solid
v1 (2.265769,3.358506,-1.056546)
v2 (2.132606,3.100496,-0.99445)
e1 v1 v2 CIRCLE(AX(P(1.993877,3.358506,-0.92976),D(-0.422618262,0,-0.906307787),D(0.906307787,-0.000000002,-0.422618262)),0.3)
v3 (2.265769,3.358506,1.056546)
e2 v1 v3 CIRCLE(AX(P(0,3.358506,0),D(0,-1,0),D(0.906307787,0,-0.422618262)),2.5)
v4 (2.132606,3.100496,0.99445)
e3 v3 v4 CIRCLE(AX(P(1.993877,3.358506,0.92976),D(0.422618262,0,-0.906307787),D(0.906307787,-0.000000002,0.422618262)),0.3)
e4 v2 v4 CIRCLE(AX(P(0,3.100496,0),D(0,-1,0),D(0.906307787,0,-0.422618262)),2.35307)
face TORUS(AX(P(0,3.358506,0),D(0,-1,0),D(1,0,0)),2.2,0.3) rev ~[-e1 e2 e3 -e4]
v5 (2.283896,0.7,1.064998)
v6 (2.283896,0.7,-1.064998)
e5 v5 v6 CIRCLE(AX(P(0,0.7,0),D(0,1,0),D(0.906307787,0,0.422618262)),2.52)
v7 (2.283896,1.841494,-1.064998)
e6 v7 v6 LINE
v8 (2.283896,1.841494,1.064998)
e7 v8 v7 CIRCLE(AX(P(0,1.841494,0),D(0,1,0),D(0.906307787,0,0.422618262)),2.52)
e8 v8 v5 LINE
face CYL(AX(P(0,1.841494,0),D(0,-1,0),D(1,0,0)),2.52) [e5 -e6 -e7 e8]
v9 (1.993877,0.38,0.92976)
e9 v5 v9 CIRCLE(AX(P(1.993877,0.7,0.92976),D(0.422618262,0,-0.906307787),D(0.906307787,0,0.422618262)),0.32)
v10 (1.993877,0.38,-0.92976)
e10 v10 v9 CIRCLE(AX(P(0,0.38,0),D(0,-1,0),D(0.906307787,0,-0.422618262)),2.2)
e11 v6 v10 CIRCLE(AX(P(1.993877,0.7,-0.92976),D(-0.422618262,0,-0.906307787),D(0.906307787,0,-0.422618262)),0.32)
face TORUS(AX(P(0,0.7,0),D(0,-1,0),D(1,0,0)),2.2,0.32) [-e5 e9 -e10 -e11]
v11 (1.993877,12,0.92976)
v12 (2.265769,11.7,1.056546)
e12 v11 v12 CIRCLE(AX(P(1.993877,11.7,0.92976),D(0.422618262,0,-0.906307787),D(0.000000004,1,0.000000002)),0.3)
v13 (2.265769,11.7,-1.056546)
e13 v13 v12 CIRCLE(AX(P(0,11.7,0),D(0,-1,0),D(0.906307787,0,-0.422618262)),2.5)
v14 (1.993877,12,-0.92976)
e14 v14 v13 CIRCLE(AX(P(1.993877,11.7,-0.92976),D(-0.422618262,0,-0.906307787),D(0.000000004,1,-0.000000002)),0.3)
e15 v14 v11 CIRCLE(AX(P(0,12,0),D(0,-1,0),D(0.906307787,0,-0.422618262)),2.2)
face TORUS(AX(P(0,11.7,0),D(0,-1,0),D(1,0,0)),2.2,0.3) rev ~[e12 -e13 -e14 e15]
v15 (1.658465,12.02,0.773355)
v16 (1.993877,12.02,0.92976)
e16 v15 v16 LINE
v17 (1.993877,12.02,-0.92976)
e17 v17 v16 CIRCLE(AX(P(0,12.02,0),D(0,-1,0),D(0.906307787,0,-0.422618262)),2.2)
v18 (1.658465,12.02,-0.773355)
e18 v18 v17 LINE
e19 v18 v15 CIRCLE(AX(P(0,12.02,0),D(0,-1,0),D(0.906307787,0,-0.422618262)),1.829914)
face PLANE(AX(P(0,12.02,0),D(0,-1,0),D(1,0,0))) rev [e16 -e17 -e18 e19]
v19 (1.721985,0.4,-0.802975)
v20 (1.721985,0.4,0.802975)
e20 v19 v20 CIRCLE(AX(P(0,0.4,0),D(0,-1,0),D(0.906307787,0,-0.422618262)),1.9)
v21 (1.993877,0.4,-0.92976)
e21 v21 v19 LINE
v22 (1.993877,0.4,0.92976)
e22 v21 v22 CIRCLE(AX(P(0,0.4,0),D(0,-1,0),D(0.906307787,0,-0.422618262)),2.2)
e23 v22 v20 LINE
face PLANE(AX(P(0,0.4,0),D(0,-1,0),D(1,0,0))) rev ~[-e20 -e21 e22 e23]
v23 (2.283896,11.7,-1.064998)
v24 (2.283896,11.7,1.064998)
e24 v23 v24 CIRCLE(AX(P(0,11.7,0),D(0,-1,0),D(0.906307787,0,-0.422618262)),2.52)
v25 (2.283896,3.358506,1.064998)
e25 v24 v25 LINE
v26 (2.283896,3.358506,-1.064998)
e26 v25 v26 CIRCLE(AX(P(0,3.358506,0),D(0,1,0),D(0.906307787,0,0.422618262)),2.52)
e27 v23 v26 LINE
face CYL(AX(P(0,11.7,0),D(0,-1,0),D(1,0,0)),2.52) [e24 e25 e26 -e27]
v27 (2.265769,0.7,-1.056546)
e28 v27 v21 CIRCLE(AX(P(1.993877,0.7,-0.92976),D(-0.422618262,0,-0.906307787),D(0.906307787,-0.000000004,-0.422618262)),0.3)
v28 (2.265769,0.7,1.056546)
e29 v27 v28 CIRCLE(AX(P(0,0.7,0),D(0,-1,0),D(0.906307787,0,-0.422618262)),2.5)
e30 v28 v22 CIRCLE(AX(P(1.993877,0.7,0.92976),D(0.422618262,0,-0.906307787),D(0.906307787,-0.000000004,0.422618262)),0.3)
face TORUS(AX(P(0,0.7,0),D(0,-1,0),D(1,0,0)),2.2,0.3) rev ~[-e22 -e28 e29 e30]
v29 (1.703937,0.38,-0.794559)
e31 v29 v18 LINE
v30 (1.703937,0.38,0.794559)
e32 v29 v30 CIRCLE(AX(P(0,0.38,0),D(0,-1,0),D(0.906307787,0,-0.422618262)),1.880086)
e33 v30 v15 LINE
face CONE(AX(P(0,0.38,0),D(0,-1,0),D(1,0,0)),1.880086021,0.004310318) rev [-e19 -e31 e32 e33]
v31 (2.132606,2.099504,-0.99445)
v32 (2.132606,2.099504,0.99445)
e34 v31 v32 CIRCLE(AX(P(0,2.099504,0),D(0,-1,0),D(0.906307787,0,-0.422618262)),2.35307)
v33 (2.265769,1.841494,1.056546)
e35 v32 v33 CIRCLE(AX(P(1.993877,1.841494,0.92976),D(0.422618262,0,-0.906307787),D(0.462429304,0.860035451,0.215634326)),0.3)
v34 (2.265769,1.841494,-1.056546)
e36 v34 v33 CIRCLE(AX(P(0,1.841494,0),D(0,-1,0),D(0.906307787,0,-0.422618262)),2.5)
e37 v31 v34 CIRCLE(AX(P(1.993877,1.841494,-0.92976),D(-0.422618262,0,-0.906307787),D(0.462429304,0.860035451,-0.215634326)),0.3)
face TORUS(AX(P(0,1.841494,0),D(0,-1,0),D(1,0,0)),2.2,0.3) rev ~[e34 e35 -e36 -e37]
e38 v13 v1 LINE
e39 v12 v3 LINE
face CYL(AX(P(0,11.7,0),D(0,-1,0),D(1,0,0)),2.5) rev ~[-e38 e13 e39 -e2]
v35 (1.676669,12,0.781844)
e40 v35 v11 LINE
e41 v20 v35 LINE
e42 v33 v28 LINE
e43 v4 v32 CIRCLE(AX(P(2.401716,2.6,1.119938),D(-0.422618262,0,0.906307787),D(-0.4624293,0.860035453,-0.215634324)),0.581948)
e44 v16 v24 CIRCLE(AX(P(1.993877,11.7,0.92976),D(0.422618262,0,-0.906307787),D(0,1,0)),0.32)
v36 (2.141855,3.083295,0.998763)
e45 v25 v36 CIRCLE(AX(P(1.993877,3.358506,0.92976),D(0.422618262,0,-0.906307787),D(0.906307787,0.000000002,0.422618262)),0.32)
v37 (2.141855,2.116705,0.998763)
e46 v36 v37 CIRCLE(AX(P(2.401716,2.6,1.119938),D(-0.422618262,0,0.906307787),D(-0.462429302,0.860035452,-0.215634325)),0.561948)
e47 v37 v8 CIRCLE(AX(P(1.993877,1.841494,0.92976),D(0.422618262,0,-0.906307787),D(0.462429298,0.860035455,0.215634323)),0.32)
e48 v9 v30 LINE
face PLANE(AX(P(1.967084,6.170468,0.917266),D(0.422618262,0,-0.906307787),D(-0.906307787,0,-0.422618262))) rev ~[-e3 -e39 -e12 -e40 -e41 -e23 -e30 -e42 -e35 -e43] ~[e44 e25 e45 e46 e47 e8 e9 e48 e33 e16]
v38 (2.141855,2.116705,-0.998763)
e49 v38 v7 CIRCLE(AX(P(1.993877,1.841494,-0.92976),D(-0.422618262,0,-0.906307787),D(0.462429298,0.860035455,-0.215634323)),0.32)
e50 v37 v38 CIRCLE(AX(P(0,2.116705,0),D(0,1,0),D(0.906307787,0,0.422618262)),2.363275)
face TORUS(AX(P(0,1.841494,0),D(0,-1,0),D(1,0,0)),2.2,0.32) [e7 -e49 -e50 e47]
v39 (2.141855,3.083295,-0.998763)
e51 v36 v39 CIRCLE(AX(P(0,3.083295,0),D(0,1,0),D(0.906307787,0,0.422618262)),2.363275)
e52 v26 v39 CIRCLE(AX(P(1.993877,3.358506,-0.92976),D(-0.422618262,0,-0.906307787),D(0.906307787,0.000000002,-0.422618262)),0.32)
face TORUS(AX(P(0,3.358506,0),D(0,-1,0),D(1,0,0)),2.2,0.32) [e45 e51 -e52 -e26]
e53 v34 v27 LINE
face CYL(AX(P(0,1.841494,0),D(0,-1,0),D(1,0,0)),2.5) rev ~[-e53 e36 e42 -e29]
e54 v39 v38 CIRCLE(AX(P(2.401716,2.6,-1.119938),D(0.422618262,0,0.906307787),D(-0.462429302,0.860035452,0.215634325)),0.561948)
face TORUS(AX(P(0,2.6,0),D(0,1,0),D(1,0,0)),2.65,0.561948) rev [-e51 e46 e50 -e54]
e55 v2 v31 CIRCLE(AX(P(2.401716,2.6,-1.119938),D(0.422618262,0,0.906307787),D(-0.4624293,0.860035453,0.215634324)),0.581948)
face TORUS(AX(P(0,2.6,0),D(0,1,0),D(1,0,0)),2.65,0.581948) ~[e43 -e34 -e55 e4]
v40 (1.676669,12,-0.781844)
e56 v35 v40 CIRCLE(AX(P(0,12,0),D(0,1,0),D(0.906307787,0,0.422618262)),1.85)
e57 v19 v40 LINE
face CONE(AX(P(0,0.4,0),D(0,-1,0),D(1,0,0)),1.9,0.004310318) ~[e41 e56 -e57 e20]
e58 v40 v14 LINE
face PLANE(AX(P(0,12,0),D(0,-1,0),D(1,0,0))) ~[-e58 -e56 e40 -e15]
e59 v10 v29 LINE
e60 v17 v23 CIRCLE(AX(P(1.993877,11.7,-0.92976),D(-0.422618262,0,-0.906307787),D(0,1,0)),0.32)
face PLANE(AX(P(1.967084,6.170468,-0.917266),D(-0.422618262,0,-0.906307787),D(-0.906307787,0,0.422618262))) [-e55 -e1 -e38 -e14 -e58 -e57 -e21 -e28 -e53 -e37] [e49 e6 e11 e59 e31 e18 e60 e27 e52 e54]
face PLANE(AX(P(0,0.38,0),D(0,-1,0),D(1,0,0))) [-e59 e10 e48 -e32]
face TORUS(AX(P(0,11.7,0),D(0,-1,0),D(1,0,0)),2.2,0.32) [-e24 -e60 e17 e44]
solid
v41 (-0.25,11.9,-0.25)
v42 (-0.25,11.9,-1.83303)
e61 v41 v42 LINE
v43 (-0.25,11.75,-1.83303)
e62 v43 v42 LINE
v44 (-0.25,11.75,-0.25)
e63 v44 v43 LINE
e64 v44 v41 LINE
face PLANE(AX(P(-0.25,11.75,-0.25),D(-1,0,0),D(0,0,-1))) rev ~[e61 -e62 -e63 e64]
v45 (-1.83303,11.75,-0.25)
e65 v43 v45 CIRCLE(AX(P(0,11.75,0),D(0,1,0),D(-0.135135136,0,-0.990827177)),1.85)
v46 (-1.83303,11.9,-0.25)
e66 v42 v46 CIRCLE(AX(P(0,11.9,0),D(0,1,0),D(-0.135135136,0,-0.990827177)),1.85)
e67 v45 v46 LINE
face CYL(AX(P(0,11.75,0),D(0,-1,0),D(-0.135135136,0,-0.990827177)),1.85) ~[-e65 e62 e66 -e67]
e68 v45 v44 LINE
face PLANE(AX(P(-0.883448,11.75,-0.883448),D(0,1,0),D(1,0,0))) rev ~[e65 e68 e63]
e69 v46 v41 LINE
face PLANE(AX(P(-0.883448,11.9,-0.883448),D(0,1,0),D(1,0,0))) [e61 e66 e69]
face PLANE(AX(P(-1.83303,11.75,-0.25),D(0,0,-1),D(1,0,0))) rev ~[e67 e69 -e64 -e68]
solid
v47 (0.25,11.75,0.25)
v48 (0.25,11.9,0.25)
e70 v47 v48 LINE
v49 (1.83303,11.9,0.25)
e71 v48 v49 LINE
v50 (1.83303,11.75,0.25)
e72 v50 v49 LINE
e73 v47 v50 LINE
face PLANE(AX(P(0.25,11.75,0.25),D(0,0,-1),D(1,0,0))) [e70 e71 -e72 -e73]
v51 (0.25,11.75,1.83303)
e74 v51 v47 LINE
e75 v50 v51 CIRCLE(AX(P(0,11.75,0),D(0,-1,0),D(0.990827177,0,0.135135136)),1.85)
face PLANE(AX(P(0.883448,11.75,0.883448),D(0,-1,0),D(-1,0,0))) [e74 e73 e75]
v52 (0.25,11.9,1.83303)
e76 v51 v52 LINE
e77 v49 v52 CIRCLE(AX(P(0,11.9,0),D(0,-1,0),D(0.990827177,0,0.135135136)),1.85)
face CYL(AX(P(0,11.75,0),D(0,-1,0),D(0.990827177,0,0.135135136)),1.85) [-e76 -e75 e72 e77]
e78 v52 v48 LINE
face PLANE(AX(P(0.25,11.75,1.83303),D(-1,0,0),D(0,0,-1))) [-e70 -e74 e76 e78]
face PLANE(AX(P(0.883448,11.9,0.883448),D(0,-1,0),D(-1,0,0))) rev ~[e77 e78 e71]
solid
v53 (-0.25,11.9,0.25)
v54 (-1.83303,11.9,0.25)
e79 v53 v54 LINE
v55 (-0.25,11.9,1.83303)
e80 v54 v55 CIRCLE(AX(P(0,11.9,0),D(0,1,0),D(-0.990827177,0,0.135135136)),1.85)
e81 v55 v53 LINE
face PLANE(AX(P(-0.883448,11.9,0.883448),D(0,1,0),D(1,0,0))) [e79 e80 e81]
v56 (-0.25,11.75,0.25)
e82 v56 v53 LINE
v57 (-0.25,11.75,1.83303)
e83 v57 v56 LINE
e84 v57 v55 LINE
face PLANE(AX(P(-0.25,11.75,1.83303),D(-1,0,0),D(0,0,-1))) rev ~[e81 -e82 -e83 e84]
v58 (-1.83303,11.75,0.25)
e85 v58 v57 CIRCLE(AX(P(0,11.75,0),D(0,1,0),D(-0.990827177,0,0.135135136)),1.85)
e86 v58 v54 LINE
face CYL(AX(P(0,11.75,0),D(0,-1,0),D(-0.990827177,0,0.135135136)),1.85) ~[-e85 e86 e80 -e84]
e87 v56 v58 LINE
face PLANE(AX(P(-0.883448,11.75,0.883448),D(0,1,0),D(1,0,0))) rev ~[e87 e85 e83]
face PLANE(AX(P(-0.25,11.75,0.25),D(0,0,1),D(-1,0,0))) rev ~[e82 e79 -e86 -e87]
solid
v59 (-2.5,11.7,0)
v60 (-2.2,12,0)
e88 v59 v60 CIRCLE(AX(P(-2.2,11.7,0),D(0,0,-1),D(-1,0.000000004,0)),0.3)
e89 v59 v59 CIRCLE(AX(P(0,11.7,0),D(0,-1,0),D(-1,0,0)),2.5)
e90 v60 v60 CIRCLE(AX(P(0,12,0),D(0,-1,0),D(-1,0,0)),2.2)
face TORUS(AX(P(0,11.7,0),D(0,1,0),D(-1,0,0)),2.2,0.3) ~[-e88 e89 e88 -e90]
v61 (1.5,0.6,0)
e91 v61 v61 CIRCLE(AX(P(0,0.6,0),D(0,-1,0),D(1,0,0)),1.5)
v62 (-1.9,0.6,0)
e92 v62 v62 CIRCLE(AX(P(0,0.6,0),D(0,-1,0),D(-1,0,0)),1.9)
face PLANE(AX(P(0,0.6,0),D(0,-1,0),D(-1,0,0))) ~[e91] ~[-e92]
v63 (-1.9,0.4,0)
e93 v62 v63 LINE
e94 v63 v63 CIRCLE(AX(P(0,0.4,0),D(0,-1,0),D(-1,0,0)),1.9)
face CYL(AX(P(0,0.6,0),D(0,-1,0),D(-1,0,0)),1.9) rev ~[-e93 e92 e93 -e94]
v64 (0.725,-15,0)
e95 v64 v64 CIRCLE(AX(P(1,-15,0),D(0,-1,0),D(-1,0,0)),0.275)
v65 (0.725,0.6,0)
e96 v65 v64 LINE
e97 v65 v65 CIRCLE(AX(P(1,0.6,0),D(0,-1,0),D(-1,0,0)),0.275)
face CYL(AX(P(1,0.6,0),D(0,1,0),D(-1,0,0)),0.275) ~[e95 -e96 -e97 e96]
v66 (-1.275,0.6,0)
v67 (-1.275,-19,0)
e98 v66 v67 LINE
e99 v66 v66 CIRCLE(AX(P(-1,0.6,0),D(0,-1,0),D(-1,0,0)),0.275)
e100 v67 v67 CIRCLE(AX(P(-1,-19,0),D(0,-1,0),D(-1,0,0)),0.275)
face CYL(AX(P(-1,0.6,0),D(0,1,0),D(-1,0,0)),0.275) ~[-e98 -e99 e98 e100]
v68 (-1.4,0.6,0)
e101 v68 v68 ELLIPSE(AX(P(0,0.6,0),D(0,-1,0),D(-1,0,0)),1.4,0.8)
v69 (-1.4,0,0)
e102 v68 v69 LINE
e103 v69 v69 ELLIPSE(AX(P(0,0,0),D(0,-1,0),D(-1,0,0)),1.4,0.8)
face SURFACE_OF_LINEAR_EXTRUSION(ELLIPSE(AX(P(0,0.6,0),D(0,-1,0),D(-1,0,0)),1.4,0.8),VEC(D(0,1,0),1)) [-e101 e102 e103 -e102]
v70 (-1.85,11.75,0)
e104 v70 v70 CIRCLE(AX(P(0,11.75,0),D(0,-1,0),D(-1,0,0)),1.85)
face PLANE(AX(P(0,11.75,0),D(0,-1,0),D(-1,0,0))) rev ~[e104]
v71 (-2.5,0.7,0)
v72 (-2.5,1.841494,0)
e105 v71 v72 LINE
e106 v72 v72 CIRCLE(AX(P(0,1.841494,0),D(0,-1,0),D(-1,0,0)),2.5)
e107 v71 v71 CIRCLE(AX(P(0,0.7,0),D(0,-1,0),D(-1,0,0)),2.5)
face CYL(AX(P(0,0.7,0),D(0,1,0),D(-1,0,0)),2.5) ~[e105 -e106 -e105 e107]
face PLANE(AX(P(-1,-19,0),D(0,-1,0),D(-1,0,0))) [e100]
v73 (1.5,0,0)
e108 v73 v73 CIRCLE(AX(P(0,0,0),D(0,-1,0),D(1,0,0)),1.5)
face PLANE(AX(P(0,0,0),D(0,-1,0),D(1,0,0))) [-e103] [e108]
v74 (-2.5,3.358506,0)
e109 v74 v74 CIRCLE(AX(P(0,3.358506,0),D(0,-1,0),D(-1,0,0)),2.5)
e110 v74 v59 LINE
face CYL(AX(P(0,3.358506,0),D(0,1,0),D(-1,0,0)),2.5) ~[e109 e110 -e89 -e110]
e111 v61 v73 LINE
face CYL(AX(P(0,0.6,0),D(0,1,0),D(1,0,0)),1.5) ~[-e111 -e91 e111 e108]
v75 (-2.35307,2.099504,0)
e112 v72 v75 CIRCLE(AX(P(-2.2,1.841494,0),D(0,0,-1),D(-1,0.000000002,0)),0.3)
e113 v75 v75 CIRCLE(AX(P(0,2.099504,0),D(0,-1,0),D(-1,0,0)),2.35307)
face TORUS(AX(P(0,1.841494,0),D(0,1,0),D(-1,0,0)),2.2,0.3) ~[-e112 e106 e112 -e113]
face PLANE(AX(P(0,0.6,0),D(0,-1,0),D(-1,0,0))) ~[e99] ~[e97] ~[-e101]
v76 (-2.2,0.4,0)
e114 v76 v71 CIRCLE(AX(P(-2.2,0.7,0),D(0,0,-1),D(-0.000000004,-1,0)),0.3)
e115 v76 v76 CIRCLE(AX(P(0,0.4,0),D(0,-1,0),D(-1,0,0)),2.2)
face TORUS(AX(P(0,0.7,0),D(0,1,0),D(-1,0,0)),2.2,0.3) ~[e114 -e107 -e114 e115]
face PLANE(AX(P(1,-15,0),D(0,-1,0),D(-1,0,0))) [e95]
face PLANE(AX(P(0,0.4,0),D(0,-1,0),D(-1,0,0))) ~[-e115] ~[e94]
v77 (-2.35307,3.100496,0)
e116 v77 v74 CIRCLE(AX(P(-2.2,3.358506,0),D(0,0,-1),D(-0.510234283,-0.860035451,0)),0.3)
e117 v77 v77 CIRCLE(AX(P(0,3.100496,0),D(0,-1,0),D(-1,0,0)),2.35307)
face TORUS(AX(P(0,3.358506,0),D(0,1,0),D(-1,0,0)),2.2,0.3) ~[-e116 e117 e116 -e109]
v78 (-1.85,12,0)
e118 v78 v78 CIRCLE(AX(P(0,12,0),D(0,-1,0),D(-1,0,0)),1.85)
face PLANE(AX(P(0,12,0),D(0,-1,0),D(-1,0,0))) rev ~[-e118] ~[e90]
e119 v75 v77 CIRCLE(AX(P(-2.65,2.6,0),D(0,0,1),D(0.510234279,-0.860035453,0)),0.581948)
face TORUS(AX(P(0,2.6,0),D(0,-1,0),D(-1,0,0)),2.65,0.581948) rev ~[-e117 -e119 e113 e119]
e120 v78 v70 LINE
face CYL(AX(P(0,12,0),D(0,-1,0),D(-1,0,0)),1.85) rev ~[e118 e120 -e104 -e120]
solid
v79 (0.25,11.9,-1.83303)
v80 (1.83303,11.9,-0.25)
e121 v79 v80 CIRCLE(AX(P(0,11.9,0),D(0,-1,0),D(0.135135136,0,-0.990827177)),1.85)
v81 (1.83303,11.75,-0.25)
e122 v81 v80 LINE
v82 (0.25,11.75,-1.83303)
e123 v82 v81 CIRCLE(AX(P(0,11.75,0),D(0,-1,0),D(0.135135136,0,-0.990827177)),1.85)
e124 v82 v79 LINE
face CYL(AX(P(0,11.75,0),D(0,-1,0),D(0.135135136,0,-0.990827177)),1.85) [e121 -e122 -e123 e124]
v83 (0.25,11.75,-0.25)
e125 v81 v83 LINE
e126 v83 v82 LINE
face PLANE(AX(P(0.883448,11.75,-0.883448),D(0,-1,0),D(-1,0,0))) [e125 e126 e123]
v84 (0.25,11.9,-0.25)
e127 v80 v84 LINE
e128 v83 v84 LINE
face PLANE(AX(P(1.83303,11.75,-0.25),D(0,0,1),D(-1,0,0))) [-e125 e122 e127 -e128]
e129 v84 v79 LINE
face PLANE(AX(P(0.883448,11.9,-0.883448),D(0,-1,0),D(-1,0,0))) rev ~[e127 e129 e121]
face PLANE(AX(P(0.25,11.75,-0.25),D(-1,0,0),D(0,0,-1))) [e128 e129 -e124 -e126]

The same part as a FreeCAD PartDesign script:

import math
import FreeCAD as App
import Part
import Sketcher
from FreeCAD import Vector
Q = App.Units.Quantity

doc = App.newDocument("Part")
params = doc.addObject("Spreadsheet::Sheet", "Params")
for row, (alias, value) in enumerate([
    ("sketch1_radius", "0.3 mm"),
    ("sketch1_width", "1.9 mm"),
    ("sketch1_width2", "0.3 mm"),
    ("sketch1_height", "0.2 mm"),
    ("sketch1_width3", "0.35 mm"),
    ("revolution_angle", "360 deg"),
    ("sketch2_radius", "1.85 mm"),
    ("pad1_length", "0.15 mm"),
    ("sketch3_radius", "1.85 mm"),
    ("pad2_length", "0.15 mm"),
    ("sketch4_radius", "1.85 mm"),
    ("pad3_length", "0.15 mm"),
    ("sketch5_radius", "1.85 mm"),
    ("pad4_length", "0.15 mm"),
    ("sketch6_diameter", "3 mm"),
    ("pad5_length", "0.6 mm"),
    ("sketch7_radius", "0.3 mm"),
    ("sketch7_radius2", "0.32 mm"),
    ("sketch7_width", "0.3 mm"),
    ("sketch7_width2", "0.35 mm"),
    ("revolution2_angle", "25 deg"),
    ("sketch8_radius", "0.3 mm"),
    ("sketch8_radius2", "0.32 mm"),
    ("sketch8_width", "0.3 mm"),
    ("sketch8_width2", "0.35 mm"),
    ("revolution3_angle", "25 deg"),
    ("sketch9_diameter", "0.55 mm"),
    ("pad6_length", "19.6 mm"),
    ("sketch10_diameter", "0.55 mm"),
    ("pad7_length", "15.6 mm"),
], start=1):
    params.set(f"A{row}", alias)
    params.set(f"B{row}", "=" + value)
    params.setAlias(f"B{row}", alias)

body = doc.addObject("PartDesign::Body", "Body")

# Sketch on XY plane
sketch1 = body.newObject("Sketcher::SketchObject", "Sketch")
sketch1.AttachmentSupport = (doc.getObject("XY_Plane"), [""])
sketch1.MapMode = "FlatFace"
sketch1.addGeometry([
    Part.LineSegment(Vector(0, 0.6, 0), Vector(1.9, 0.6, 0)),  # 0
    Part.LineSegment(Vector(1.9, 0.6, 0), Vector(1.9, 0.4, 0)),  # 1
    Part.LineSegment(Vector(1.9, 0.4, 0), Vector(2.2, 0.4, 0)),  # 2
    Part.ArcOfCircle(Part.Circle(Vector(2.2, 0.7, 0), Vector(0, 0, 1), 0.3), math.radians(-90), math.radians(0)),  # 3
    Part.LineSegment(Vector(2.5, 0.7, 0), Vector(2.5, 1.841494, 0)),  # 4
    Part.ArcOfCircle(Part.Circle(Vector(2.2, 1.841494, 0), Vector(0, 0, 1), 0.3), math.radians(0), math.radians(59.320564)),  # 5
    Part.ArcOfCircle(Part.Circle(Vector(2.65, 2.6, 0), Vector(0, 0, 1), 0.581948), math.radians(120.679436), math.radians(239.320564)),  # 6
    Part.ArcOfCircle(Part.Circle(Vector(2.2, 3.358506, 0), Vector(0, 0, 1), 0.3), math.radians(-59.320564), math.radians(0)),  # 7
    Part.LineSegment(Vector(2.5, 3.358506, 0), Vector(2.5, 11.7, 0)),  # 8
    Part.ArcOfCircle(Part.Circle(Vector(2.2, 11.7, 0), Vector(0, 0, 1), 0.3), math.radians(0), math.radians(90)),  # 9
    Part.LineSegment(Vector(2.2, 12, 0), Vector(1.85, 12, 0)),  # 10
    Part.LineSegment(Vector(1.85, 12, 0), Vector(1.85, 11.75, 0)),  # 11
    Part.LineSegment(Vector(1.85, 11.75, 0), Vector(0, 11.75, 0)),  # 12
    Part.LineSegment(Vector(0, 11.75, 0), Vector(0, 0.6, 0)),  # 13
], False)
sketch1.addConstraint([
    Sketcher.Constraint("Coincident", 0, 2, 1, 1),
    Sketcher.Constraint("Coincident", 1, 2, 2, 1),
    Sketcher.Constraint("Tangent", 2, 2, 3, 1),
    Sketcher.Constraint("Tangent", 3, 2, 4, 1),
    Sketcher.Constraint("Tangent", 4, 2, 5, 1),
    Sketcher.Constraint("Tangent", 5, 2, 6, 2),
    Sketcher.Constraint("Tangent", 6, 1, 7, 1),
    Sketcher.Constraint("Tangent", 7, 2, 8, 1),
    Sketcher.Constraint("Tangent", 8, 2, 9, 1),
    Sketcher.Constraint("Tangent", 9, 2, 10, 1),
    Sketcher.Constraint("Coincident", 10, 2, 11, 1),
    Sketcher.Constraint("Coincident", 11, 2, 12, 1),
    Sketcher.Constraint("Coincident", 12, 2, 13, 1),
    Sketcher.Constraint("Coincident", 13, 2, 0, 1),
    Sketcher.Constraint("Horizontal", 0),
    Sketcher.Constraint("Vertical", 1),
    Sketcher.Constraint("Horizontal", 2),
    Sketcher.Constraint("Vertical", 4),
    Sketcher.Constraint("Vertical", 8),
    Sketcher.Constraint("Horizontal", 10),
    Sketcher.Constraint("Vertical", 11),
    Sketcher.Constraint("Horizontal", 12),
    Sketcher.Constraint("Vertical", 13),
    Sketcher.Constraint("Equal", 3, 5),
    Sketcher.Constraint("Equal", 5, 7),
    Sketcher.Constraint("Equal", 7, 9),
    Sketcher.Constraint("PointOnObject", 12, 2, -2),
    Sketcher.Constraint("Vertical", 5, 3, 7, 3),
    Sketcher.Constraint("Radius", 3, Q("0.3 mm")),
    Sketcher.Constraint("DistanceX", 0, 1, 0, 2, Q("1.9 mm")),
    Sketcher.Constraint("DistanceX", 2, 1, 2, 2, Q("0.3 mm")),
    Sketcher.Constraint("DistanceY", 1, 2, 1, 1, Q("0.2 mm")),
    Sketcher.Constraint("DistanceY", -1, 1, 9, 2, Q("12 mm")),
    Sketcher.Constraint("DistanceY", 3, 3, 9, 3, Q("11 mm")),
    Sketcher.Constraint("DistanceY", 0, 2, 6, 3, Q("2 mm")),
    Sketcher.Constraint("DistanceX", 10, 2, 10, 1, Q("0.35 mm")),
    Sketcher.Constraint("DistanceY", 11, 2, 11, 1, Q("0.25 mm")),
    Sketcher.Constraint("DistanceX", -1, 1, 6, 3, Q("2.65 mm")),
    Sketcher.Constraint("Radius", 6, Q("0.581948 mm")),
])
sketch1.setExpression("Constraints[28]", "Params.sketch1_radius")
sketch1.setExpression("Constraints[29]", "Params.sketch1_width")
sketch1.setExpression("Constraints[30]", "Params.sketch1_width2")
sketch1.setExpression("Constraints[31]", "Params.sketch1_height")
sketch1.setExpression("Constraints[35]", "Params.sketch1_width3")
revolution = body.newObject("PartDesign::Revolution", "Revolution")
revolution.Profile = sketch1
revolution.ReferenceAxis = (sketch1, ["V_Axis"])
revolution.setExpression("Angle", "Params.revolution_angle")
body2 = doc.addObject("PartDesign::Body", "Body001")

# Sketch on XZ plane
sketch2 = body2.newObject("Sketcher::SketchObject", "Sketch001")
sketch2.AttachmentSupport = (doc.getObject("XZ_Plane001"), [""])
sketch2.MapMode = "FlatFace"
sketch2.AttachmentOffset = App.Placement(Vector(0, 0, -11.75), App.Rotation())
sketch2.addGeometry([
    Part.LineSegment(Vector(-0.25, -0.25, 0), Vector(-0.25, -1.83303, 0)),
    Part.ArcOfCircle(Part.Circle(Vector(0, 0, 0), Vector(0, 0, 1), 1.85), math.radians(-172.233566), math.radians(-97.766434)),
    Part.LineSegment(Vector(-1.83303, -0.25, 0), Vector(-0.25, -0.25, 0)),
], False)
sketch2.addConstraint([
    Sketcher.Constraint("Coincident", 0, 2, 1, 2),
    Sketcher.Constraint("Coincident", 1, 1, 2, 1),
    Sketcher.Constraint("Coincident", 2, 2, 0, 1),
    Sketcher.Constraint("Vertical", 0),
    Sketcher.Constraint("Horizontal", 2),
    Sketcher.Constraint("Coincident", 1, 3, -1, 1),
    Sketcher.Constraint("Equal", 2, 0),
    Sketcher.Constraint("Radius", 1, Q("1.85 mm")),
    Sketcher.Constraint("DistanceX", 0, 2, -1, 1, Q("0.25 mm")),
])
sketch2.setExpression("Constraints[7]", "Params.sketch2_radius")
pad1 = body2.newObject("PartDesign::Pad", "Pad")
pad1.Profile = sketch2
pad1.setExpression("Length", "Params.pad1_length")
pad1.Reversed = True
body3 = doc.addObject("PartDesign::Body", "Body002")

# Sketch on XZ plane
sketch3 = body3.newObject("Sketcher::SketchObject", "Sketch002")
sketch3.AttachmentSupport = (doc.getObject("XZ_Plane002"), [""])
sketch3.MapMode = "FlatFace"
sketch3.AttachmentOffset = App.Placement(Vector(0, 0, -11.75), App.Rotation())
sketch3.addGeometry([
    Part.LineSegment(Vector(0.25, 0.25, 0), Vector(0.25, 1.83303, 0)),
    Part.ArcOfCircle(Part.Circle(Vector(0, 0, 0), Vector(0, 0, 1), 1.85), math.radians(7.766434), math.radians(82.233566)),
    Part.LineSegment(Vector(1.83303, 0.25, 0), Vector(0.25, 0.25, 0)),
], False)
sketch3.addConstraint([
    Sketcher.Constraint("Coincident", 0, 2, 1, 2),
    Sketcher.Constraint("Coincident", 1, 1, 2, 1),
    Sketcher.Constraint("Coincident", 2, 2, 0, 1),
    Sketcher.Constraint("Vertical", 0),
    Sketcher.Constraint("Horizontal", 2),
    Sketcher.Constraint("Coincident", 1, 3, -1, 1),
    Sketcher.Constraint("Equal", 2, 0),
    Sketcher.Constraint("Radius", 1, Q("1.85 mm")),
    Sketcher.Constraint("DistanceX", -1, 1, 0, 2, Q("0.25 mm")),
])
sketch3.setExpression("Constraints[7]", "Params.sketch3_radius")
pad2 = body3.newObject("PartDesign::Pad", "Pad001")
pad2.Profile = sketch3
pad2.setExpression("Length", "Params.pad2_length")
pad2.Reversed = True
body4 = doc.addObject("PartDesign::Body", "Body003")

# Sketch on XZ plane
sketch4 = body4.newObject("Sketcher::SketchObject", "Sketch003")
sketch4.AttachmentSupport = (doc.getObject("XZ_Plane003"), [""])
sketch4.MapMode = "FlatFace"
sketch4.AttachmentOffset = App.Placement(Vector(0, 0, -11.75), App.Rotation())
sketch4.addGeometry([
    Part.LineSegment(Vector(-0.25, 1.83303, 0), Vector(-0.25, 0.25, 0)),
    Part.LineSegment(Vector(-0.25, 0.25, 0), Vector(-1.83303, 0.25, 0)),
    Part.ArcOfCircle(Part.Circle(Vector(0, 0, 0), Vector(0, 0, 1), 1.85), math.radians(97.766434), math.radians(172.233566)),
], False)
sketch4.addConstraint([
    Sketcher.Constraint("Coincident", 0, 2, 1, 1),
    Sketcher.Constraint("Coincident", 1, 2, 2, 2),
    Sketcher.Constraint("Coincident", 2, 1, 0, 1),
    Sketcher.Constraint("Vertical", 0),
    Sketcher.Constraint("Horizontal", 1),
    Sketcher.Constraint("Coincident", 2, 3, -1, 1),
    Sketcher.Constraint("Equal", 1, 0),
    Sketcher.Constraint("Radius", 2, Q("1.85 mm")),
    Sketcher.Constraint("DistanceX", 0, 2, -1, 1, Q("0.25 mm")),
])
sketch4.setExpression("Constraints[7]", "Params.sketch4_radius")
pad3 = body4.newObject("PartDesign::Pad", "Pad002")
pad3.Profile = sketch4
pad3.setExpression("Length", "Params.pad3_length")
pad3.Reversed = True
body5 = doc.addObject("PartDesign::Body", "Body004")

# Sketch on XZ plane
sketch5 = body5.newObject("Sketcher::SketchObject", "Sketch004")
sketch5.AttachmentSupport = (doc.getObject("XZ_Plane004"), [""])
sketch5.MapMode = "FlatFace"
sketch5.AttachmentOffset = App.Placement(Vector(0, 0, -11.75), App.Rotation())
sketch5.addGeometry([
    Part.LineSegment(Vector(0.25, -1.83303, 0), Vector(0.25, -0.25, 0)),
    Part.LineSegment(Vector(0.25, -0.25, 0), Vector(1.83303, -0.25, 0)),
    Part.ArcOfCircle(Part.Circle(Vector(0, 0, 0), Vector(0, 0, 1), 1.85), math.radians(-82.233566), math.radians(-7.766434)),
], False)
sketch5.addConstraint([
    Sketcher.Constraint("Coincident", 0, 2, 1, 1),
    Sketcher.Constraint("Coincident", 1, 2, 2, 2),
    Sketcher.Constraint("Coincident", 2, 1, 0, 1),
    Sketcher.Constraint("Vertical", 0),
    Sketcher.Constraint("Horizontal", 1),
    Sketcher.Constraint("Coincident", 2, 3, -1, 1),
    Sketcher.Constraint("Equal", 1, 0),
    Sketcher.Constraint("Radius", 2, Q("1.85 mm")),
    Sketcher.Constraint("DistanceX", -1, 1, 0, 2, Q("0.25 mm")),
])
sketch5.setExpression("Constraints[7]", "Params.sketch5_radius")
pad4 = body5.newObject("PartDesign::Pad", "Pad003")
pad4.Profile = sketch5
pad4.setExpression("Length", "Params.pad4_length")
pad4.Reversed = True
body6 = doc.addObject("PartDesign::Body", "Body005")

# Sketch on XZ plane
sketch6 = body6.newObject("Sketcher::SketchObject", "Sketch005")
sketch6.AttachmentSupport = (doc.getObject("XZ_Plane005"), [""])
sketch6.MapMode = "FlatFace"
sketch6.AttachmentOffset = App.Placement(Vector(0, 0, -0.6), App.Rotation())
sketch6.addGeometry([
    Part.Circle(Vector(0, 0, 0), Vector(0, 0, 1), 1.5),
    Part.Ellipse(Vector(-1.4, 0, 0), Vector(0, -0.8, 0), Vector(0, 0, 0)),
], False)
sketch6.addConstraint([
    Sketcher.Constraint("Block", 1),
    Sketcher.Constraint("Coincident", 0, 3, -1, 1),
    Sketcher.Constraint("Diameter", 0, Q("3 mm")),
])
sketch6.setExpression("Constraints[2]", "Params.sketch6_diameter")
pad5 = body6.newObject("PartDesign::Pad", "Pad004")
pad5.Profile = sketch6
pad5.setExpression("Length", "Params.pad5_length")
body7 = doc.addObject("PartDesign::Body", "Body006")

# Sketch on XY plane
sketch7 = body7.newObject("Sketcher::SketchObject", "Sketch006")
sketch7.AttachmentSupport = (doc.getObject("XY_Plane006"), [""])
sketch7.MapMode = "FlatFace"
sketch7.addGeometry([
    Part.LineSegment(Vector(2.52, 3.358506, 0), Vector(2.52, 11.7, 0)),  # 0
    Part.ArcOfCircle(Part.Circle(Vector(2.2, 11.7, 0), Vector(0, 0, 1), 0.32), math.radians(0), math.radians(90)),  # 1
    Part.LineSegment(Vector(2.2, 12.02, 0), Vector(1.829914, 12.02, 0)),  # 2
    Part.LineSegment(Vector(1.829914, 12.02, 0), Vector(1.880086, 0.38, 0)),  # 3
    Part.LineSegment(Vector(1.880086, 0.38, 0), Vector(2.2, 0.38, 0)),  # 4
    Part.ArcOfCircle(Part.Circle(Vector(2.2, 0.7, 0), Vector(0, 0, 1), 0.32), math.radians(-90), math.radians(0)),  # 5
    Part.LineSegment(Vector(2.52, 0.7, 0), Vector(2.52, 1.841494, 0)),  # 6
    Part.ArcOfCircle(Part.Circle(Vector(2.2, 1.841494, 0), Vector(0, 0, 1), 0.32), math.radians(0), math.radians(59.320564)),  # 7
    Part.ArcOfCircle(Part.Circle(Vector(2.65, 2.6, 0), Vector(0, 0, 1), 0.561948), math.radians(120.679436), math.radians(239.320564)),  # 8
    Part.ArcOfCircle(Part.Circle(Vector(2.2, 3.358506, 0), Vector(0, 0, 1), 0.32), math.radians(-59.320564), math.radians(0)),  # 9
    Part.LineSegment(Vector(1.85, 12, 0), Vector(2.2, 12, 0)),  # 10
    Part.ArcOfCircle(Part.Circle(Vector(2.2, 11.7, 0), Vector(0, 0, 1), 0.3), math.radians(0), math.radians(90)),  # 11
    Part.LineSegment(Vector(2.5, 11.7, 0), Vector(2.5, 3.358506, 0)),  # 12
    Part.ArcOfCircle(Part.Circle(Vector(2.2, 3.358506, 0), Vector(0, 0, 1), 0.3), math.radians(-59.320564), math.radians(0)),  # 13
    Part.ArcOfCircle(Part.Circle(Vector(2.65, 2.6, 0), Vector(0, 0, 1), 0.581948), math.radians(120.679436), math.radians(239.320564)),  # 14
    Part.ArcOfCircle(Part.Circle(Vector(2.2, 1.841494, 0), Vector(0, 0, 1), 0.3), math.radians(0), math.radians(59.320564)),  # 15
    Part.LineSegment(Vector(2.5, 1.841494, 0), Vector(2.5, 0.7, 0)),  # 16
    Part.ArcOfCircle(Part.Circle(Vector(2.2, 0.7, 0), Vector(0, 0, 1), 0.3), math.radians(-90), math.radians(0)),  # 17
    Part.LineSegment(Vector(2.2, 0.4, 0), Vector(1.9, 0.4, 0)),  # 18
    Part.LineSegment(Vector(1.9, 0.4, 0), Vector(1.85, 12, 0)),  # 19
], False)
sketch7.addConstraint([
    Sketcher.Constraint("Tangent", 0, 2, 1, 1),
    Sketcher.Constraint("Tangent", 1, 2, 2, 1),
    Sketcher.Constraint("Coincident", 2, 2, 3, 1),
    Sketcher.Constraint("Coincident", 3, 2, 4, 1),
    Sketcher.Constraint("Tangent", 4, 2, 5, 1),
    Sketcher.Constraint("Tangent", 5, 2, 6, 1),
    Sketcher.Constraint("Tangent", 6, 2, 7, 1),
    Sketcher.Constraint("Tangent", 7, 2, 8, 2),
    Sketcher.Constraint("Tangent", 8, 1, 9, 1),
    Sketcher.Constraint("Tangent", 9, 2, 0, 1),
    Sketcher.Constraint("Tangent", 10, 2, 11, 2),
    Sketcher.Constraint("Tangent", 11, 1, 12, 1),
    Sketcher.Constraint("Tangent", 12, 2, 13, 2),
    Sketcher.Constraint("Tangent", 13, 1, 14, 1),
    Sketcher.Constraint("Tangent", 14, 2, 15, 2),
    Sketcher.Constraint("Tangent", 15, 1, 16, 1),
    Sketcher.Constraint("Tangent", 16, 2, 17, 2),
    Sketcher.Constraint("Tangent", 17, 1, 18, 1),
    Sketcher.Constraint("Coincident", 18, 2, 19, 1),
    Sketcher.Constraint("Coincident", 19, 2, 10, 1),
    Sketcher.Constraint("Vertical", 0),
    Sketcher.Constraint("Horizontal", 2),
    Sketcher.Constraint("Horizontal", 4),
    Sketcher.Constraint("Vertical", 6),
    Sketcher.Constraint("Horizontal", 10),
    Sketcher.Constraint("Vertical", 12),
    Sketcher.Constraint("Vertical", 16),
    Sketcher.Constraint("Horizontal", 18),
    Sketcher.Constraint("Coincident", 11, 3, 1, 3),
    Sketcher.Constraint("Coincident", 13, 3, 9, 3),
    Sketcher.Constraint("Coincident", 14, 3, 8, 3),
    Sketcher.Constraint("Coincident", 15, 3, 7, 3),
    Sketcher.Constraint("Coincident", 17, 3, 5, 3),
    Sketcher.Constraint("Equal", 1, 5),
    Sketcher.Constraint("Equal", 5, 7),
    Sketcher.Constraint("Equal", 7, 9),
    Sketcher.Constraint("Parallel", 3, 19),
    Sketcher.Constraint("Vertical", 1, 3, 5, 3),
    Sketcher.Constraint("Radius", 11, Q("0.3 mm")),
    Sketcher.Constraint("Radius", 1, Q("0.32 mm")),
    Sketcher.Constraint("DistanceX", 18, 2, 18, 1, Q("0.3 mm")),
    Sketcher.Constraint("DistanceY", -1, 1, 10, 2, Q("12 mm")),
    Sketcher.Constraint("DistanceY", 5, 3, 1, 3, Q("11 mm")),
    Sketcher.Constraint("DistanceX", 10, 1, 10, 2, Q("0.35 mm")),
    Sketcher.Constraint("DistanceX", -1, 1, 1, 3, Q("2.2 mm")),
    Sketcher.Constraint("DistanceY", -1, 1, 8, 3, Q("2.6 mm")),
    Sketcher.Constraint("DistanceX", -1, 1, 8, 3, Q("2.65 mm")),
    Sketcher.Constraint("Radius", 8, Q("0.561948 mm")),
    Sketcher.Constraint("DistanceX", 2, 2, 2, 1, Q("0.370086 mm")),
])
sketch7.setExpression("Constraints[38]", "Params.sketch7_radius")
sketch7.setExpression("Constraints[39]", "Params.sketch7_radius2")
sketch7.setExpression("Constraints[40]", "Params.sketch7_width")
sketch7.setExpression("Constraints[43]", "Params.sketch7_width2")
revolution2 = body7.newObject("PartDesign::Revolution", "Revolution001")
revolution2.Profile = sketch7
revolution2.ReferenceAxis = (sketch7, ["V_Axis"])
revolution2.setExpression("Angle", "Params.revolution2_angle")

# Sketch on XY plane
sketch8 = body7.newObject("Sketcher::SketchObject", "Sketch007")
sketch8.AttachmentSupport = (doc.getObject("XY_Plane006"), [""])
sketch8.MapMode = "FlatFace"
sketch8.addGeometry([
    Part.LineSegment(Vector(2.52, 3.358506, 0), Vector(2.52, 11.7, 0)),  # 0
    Part.ArcOfCircle(Part.Circle(Vector(2.2, 11.7, 0), Vector(0, 0, 1), 0.32), math.radians(0), math.radians(90)),  # 1
    Part.LineSegment(Vector(2.2, 12.02, 0), Vector(1.829914, 12.02, 0)),  # 2
    Part.LineSegment(Vector(1.829914, 12.02, 0), Vector(1.880086, 0.38, 0)),  # 3
    Part.LineSegment(Vector(1.880086, 0.38, 0), Vector(2.2, 0.38, 0)),  # 4
    Part.ArcOfCircle(Part.Circle(Vector(2.2, 0.7, 0), Vector(0, 0, 1), 0.32), math.radians(-90), math.radians(0)),  # 5
    Part.LineSegment(Vector(2.52, 0.7, 0), Vector(2.52, 1.841494, 0)),  # 6
    Part.ArcOfCircle(Part.Circle(Vector(2.2, 1.841494, 0), Vector(0, 0, 1), 0.32), math.radians(0), math.radians(59.320564)),  # 7
    Part.ArcOfCircle(Part.Circle(Vector(2.65, 2.6, 0), Vector(0, 0, 1), 0.561948), math.radians(120.679436), math.radians(239.320564)),  # 8
    Part.ArcOfCircle(Part.Circle(Vector(2.2, 3.358506, 0), Vector(0, 0, 1), 0.32), math.radians(-59.320564), math.radians(0)),  # 9
    Part.LineSegment(Vector(1.85, 12, 0), Vector(2.2, 12, 0)),  # 10
    Part.ArcOfCircle(Part.Circle(Vector(2.2, 11.7, 0), Vector(0, 0, 1), 0.3), math.radians(0), math.radians(90)),  # 11
    Part.LineSegment(Vector(2.5, 11.7, 0), Vector(2.5, 3.358506, 0)),  # 12
    Part.ArcOfCircle(Part.Circle(Vector(2.2, 3.358506, 0), Vector(0, 0, 1), 0.3), math.radians(-59.320564), math.radians(0)),  # 13
    Part.ArcOfCircle(Part.Circle(Vector(2.65, 2.6, 0), Vector(0, 0, 1), 0.581948), math.radians(120.679436), math.radians(239.320564)),  # 14
    Part.ArcOfCircle(Part.Circle(Vector(2.2, 1.841494, 0), Vector(0, 0, 1), 0.3), math.radians(0), math.radians(59.320564)),  # 15
    Part.LineSegment(Vector(2.5, 1.841494, 0), Vector(2.5, 0.7, 0)),  # 16
    Part.ArcOfCircle(Part.Circle(Vector(2.2, 0.7, 0), Vector(0, 0, 1), 0.3), math.radians(-90), math.radians(0)),  # 17
    Part.LineSegment(Vector(2.2, 0.4, 0), Vector(1.9, 0.4, 0)),  # 18
    Part.LineSegment(Vector(1.9, 0.4, 0), Vector(1.85, 12, 0)),  # 19
], False)
sketch8.addConstraint([
    Sketcher.Constraint("Tangent", 0, 2, 1, 1),
    Sketcher.Constraint("Tangent", 1, 2, 2, 1),
    Sketcher.Constraint("Coincident", 2, 2, 3, 1),
    Sketcher.Constraint("Coincident", 3, 2, 4, 1),
    Sketcher.Constraint("Tangent", 4, 2, 5, 1),
    Sketcher.Constraint("Tangent", 5, 2, 6, 1),
    Sketcher.Constraint("Tangent", 6, 2, 7, 1),
    Sketcher.Constraint("Tangent", 7, 2, 8, 2),
    Sketcher.Constraint("Tangent", 8, 1, 9, 1),
    Sketcher.Constraint("Tangent", 9, 2, 0, 1),
    Sketcher.Constraint("Tangent", 10, 2, 11, 2),
    Sketcher.Constraint("Tangent", 11, 1, 12, 1),
    Sketcher.Constraint("Tangent", 12, 2, 13, 2),
    Sketcher.Constraint("Tangent", 13, 1, 14, 1),
    Sketcher.Constraint("Tangent", 14, 2, 15, 2),
    Sketcher.Constraint("Tangent", 15, 1, 16, 1),
    Sketcher.Constraint("Tangent", 16, 2, 17, 2),
    Sketcher.Constraint("Tangent", 17, 1, 18, 1),
    Sketcher.Constraint("Coincident", 18, 2, 19, 1),
    Sketcher.Constraint("Coincident", 19, 2, 10, 1),
    Sketcher.Constraint("Vertical", 0),
    Sketcher.Constraint("Horizontal", 2),
    Sketcher.Constraint("Horizontal", 4),
    Sketcher.Constraint("Vertical", 6),
    Sketcher.Constraint("Horizontal", 10),
    Sketcher.Constraint("Vertical", 12),
    Sketcher.Constraint("Vertical", 16),
    Sketcher.Constraint("Horizontal", 18),
    Sketcher.Constraint("Coincident", 11, 3, 1, 3),
    Sketcher.Constraint("Coincident", 13, 3, 9, 3),
    Sketcher.Constraint("Coincident", 14, 3, 8, 3),
    Sketcher.Constraint("Coincident", 15, 3, 7, 3),
    Sketcher.Constraint("Coincident", 17, 3, 5, 3),
    Sketcher.Constraint("Equal", 1, 5),
    Sketcher.Constraint("Equal", 5, 7),
    Sketcher.Constraint("Equal", 7, 9),
    Sketcher.Constraint("Parallel", 3, 19),
    Sketcher.Constraint("Vertical", 1, 3, 5, 3),
    Sketcher.Constraint("Radius", 11, Q("0.3 mm")),
    Sketcher.Constraint("Radius", 1, Q("0.32 mm")),
    Sketcher.Constraint("DistanceX", 18, 2, 18, 1, Q("0.3 mm")),
    Sketcher.Constraint("DistanceY", -1, 1, 10, 2, Q("12 mm")),
    Sketcher.Constraint("DistanceY", 5, 3, 1, 3, Q("11 mm")),
    Sketcher.Constraint("DistanceX", 10, 1, 10, 2, Q("0.35 mm")),
    Sketcher.Constraint("DistanceX", -1, 1, 1, 3, Q("2.2 mm")),
    Sketcher.Constraint("DistanceY", -1, 1, 8, 3, Q("2.6 mm")),
    Sketcher.Constraint("DistanceX", -1, 1, 8, 3, Q("2.65 mm")),
    Sketcher.Constraint("Radius", 8, Q("0.561948 mm")),
    Sketcher.Constraint("DistanceX", 2, 2, 2, 1, Q("0.370086 mm")),
])
sketch8.setExpression("Constraints[38]", "Params.sketch8_radius")
sketch8.setExpression("Constraints[39]", "Params.sketch8_radius2")
sketch8.setExpression("Constraints[40]", "Params.sketch8_width")
sketch8.setExpression("Constraints[43]", "Params.sketch8_width2")
revolution3 = body7.newObject("PartDesign::Revolution", "Revolution002")
revolution3.Profile = sketch8
revolution3.ReferenceAxis = (sketch8, ["V_Axis"])
revolution3.setExpression("Angle", "Params.revolution3_angle")
revolution3.Reversed = True
doc.recompute()

boolean = body.newObject("PartDesign::Boolean", "Boolean")
boolean.Type = "Fuse"
boolean.addObjects([body6])

# Sketch on XZ plane
sketch9 = body.newObject("Sketcher::SketchObject", "Sketch008")
sketch9.AttachmentSupport = (doc.getObject("XZ_Plane"), [""])
sketch9.MapMode = "FlatFace"
sketch9.AttachmentOffset = App.Placement(Vector(0, 0, -0.6), App.Rotation())
sketch9.addGeometry(Part.Circle(Vector(-1, 0, 0), Vector(0, 0, 1), 0.275), False)
sketch9.addConstraint([
    Sketcher.Constraint("PointOnObject", 0, 3, -1),
    Sketcher.Constraint("Diameter", 0, Q("0.55 mm")),
    Sketcher.Constraint("DistanceX", 0, 3, -1, 1, Q("1 mm")),
])
sketch9.setExpression("Constraints[1]", "Params.sketch9_diameter")
pad6 = body.newObject("PartDesign::Pad", "Pad005")
pad6.Profile = sketch9
pad6.setExpression("Length", "Params.pad6_length")

# Sketch on XZ plane
sketch10 = body.newObject("Sketcher::SketchObject", "Sketch009")
sketch10.AttachmentSupport = (doc.getObject("XZ_Plane"), [""])
sketch10.MapMode = "FlatFace"
sketch10.AttachmentOffset = App.Placement(Vector(0, 0, -0.6), App.Rotation())
sketch10.addGeometry(Part.Circle(Vector(1, 0, 0), Vector(0, 0, 1), 0.275), False)
sketch10.addConstraint([
    Sketcher.Constraint("PointOnObject", 0, 3, -1),
    Sketcher.Constraint("Diameter", 0, Q("0.55 mm")),
    Sketcher.Constraint("DistanceX", -1, 1, 0, 3, Q("1 mm")),
])
sketch10.setExpression("Constraints[1]", "Params.sketch10_diameter")
pad7 = body.newObject("PartDesign::Pad", "Pad006")
pad7.Profile = sketch10
pad7.setExpression("Length", "Params.pad7_length")

doc.recompute()
